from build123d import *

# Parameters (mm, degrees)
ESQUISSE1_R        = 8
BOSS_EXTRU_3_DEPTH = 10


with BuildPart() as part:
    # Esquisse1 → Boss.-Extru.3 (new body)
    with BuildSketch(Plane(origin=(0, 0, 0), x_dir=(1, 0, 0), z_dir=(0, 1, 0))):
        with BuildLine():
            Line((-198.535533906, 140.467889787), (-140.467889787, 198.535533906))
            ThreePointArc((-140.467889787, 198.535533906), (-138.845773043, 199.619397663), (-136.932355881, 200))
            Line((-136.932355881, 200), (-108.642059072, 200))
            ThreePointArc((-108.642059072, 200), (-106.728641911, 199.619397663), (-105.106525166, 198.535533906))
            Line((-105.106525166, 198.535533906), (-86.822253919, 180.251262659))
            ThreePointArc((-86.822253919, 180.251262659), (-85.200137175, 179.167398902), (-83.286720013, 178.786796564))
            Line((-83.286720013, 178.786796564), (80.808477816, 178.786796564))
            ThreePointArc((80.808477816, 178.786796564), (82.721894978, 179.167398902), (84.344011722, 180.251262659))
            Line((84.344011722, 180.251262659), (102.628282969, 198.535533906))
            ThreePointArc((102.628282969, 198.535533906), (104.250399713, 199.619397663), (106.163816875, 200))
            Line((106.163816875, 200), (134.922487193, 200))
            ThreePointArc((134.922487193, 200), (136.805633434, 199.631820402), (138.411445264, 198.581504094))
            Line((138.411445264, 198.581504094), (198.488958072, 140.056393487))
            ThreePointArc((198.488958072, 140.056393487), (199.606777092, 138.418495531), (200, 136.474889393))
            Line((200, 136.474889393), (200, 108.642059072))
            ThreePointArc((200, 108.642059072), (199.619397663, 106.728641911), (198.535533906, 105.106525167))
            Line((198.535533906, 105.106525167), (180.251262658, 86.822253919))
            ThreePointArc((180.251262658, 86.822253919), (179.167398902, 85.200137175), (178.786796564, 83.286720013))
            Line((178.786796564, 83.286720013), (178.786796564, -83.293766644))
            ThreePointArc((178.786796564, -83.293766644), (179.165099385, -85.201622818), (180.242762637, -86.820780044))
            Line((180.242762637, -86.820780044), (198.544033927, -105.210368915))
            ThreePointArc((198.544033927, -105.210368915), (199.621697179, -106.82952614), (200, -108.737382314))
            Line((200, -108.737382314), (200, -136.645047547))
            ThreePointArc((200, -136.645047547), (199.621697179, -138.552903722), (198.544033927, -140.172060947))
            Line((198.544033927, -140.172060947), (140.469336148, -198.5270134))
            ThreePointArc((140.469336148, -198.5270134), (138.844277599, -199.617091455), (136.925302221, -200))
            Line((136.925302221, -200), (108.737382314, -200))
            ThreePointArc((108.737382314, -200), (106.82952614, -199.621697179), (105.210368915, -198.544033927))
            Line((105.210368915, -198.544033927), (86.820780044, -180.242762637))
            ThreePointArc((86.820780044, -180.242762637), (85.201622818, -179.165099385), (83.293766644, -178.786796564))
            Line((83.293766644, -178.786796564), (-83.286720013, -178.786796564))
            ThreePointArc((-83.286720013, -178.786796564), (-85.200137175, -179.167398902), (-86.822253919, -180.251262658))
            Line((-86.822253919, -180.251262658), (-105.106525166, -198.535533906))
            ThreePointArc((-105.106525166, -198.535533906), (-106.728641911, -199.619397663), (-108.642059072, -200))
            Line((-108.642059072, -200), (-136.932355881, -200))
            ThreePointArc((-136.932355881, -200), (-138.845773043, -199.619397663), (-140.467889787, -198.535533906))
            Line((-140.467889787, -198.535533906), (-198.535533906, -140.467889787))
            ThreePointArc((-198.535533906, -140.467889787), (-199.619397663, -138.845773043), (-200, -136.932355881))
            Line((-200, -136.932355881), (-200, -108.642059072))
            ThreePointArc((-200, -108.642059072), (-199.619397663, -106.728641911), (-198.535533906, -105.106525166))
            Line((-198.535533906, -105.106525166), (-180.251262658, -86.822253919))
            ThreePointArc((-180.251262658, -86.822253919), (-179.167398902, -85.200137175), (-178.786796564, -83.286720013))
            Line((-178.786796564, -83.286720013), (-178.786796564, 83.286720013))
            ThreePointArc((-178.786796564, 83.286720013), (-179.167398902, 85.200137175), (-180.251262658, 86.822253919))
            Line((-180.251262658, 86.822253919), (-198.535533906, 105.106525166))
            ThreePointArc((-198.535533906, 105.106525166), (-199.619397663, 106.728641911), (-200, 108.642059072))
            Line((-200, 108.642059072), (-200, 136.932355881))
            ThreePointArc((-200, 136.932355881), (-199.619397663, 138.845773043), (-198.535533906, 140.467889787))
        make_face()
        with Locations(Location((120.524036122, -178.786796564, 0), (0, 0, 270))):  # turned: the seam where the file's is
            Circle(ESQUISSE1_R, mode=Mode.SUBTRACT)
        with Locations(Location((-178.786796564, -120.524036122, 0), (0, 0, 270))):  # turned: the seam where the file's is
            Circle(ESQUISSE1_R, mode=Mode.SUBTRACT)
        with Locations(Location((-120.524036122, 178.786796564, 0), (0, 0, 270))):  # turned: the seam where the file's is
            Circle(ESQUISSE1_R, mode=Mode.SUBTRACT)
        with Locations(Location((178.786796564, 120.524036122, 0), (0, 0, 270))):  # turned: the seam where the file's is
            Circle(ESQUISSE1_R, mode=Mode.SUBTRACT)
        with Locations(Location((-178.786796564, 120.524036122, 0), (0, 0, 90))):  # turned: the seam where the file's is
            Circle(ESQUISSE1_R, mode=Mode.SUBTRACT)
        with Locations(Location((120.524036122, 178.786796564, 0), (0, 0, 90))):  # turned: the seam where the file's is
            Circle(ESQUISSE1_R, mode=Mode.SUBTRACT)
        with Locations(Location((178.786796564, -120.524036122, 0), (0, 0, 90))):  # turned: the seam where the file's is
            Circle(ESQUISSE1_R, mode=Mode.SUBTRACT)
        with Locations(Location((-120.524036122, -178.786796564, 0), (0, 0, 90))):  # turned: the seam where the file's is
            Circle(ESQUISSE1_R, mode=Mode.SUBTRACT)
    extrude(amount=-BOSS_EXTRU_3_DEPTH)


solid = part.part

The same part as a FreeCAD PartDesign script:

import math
import FreeCAD as App
import Part
import Sketcher

doc = App.newDocument("Part")
body = doc.addObject("PartDesign::Body", "Body")

# Sketch on XZ plane
sketch1 = body.newObject("Sketcher::SketchObject", "Sketch")
sketch1.AttachmentSupport = (doc.getObject("XZ_Plane"), [""])
sketch1.MapMode = "FlatFace"
sketch1.addGeometry([
    Part.LineSegment(App.Vector(-140.5, -198.5, 0), App.Vector(-198.5, -140.5, 0)),  # 0
    Part.ArcOfCircle(Part.Circle(App.Vector(-195, -136.9, 0), App.Vector(0, 0, 1), 5), math.radians(180), math.radians(225)),  # 1
    Part.LineSegment(App.Vector(-200, -136.9, 0), App.Vector(-200, -108.6, 0)),  # 2
    Part.ArcOfCircle(Part.Circle(App.Vector(-195, -108.6, 0), App.Vector(0, 0, 1), 5), math.radians(135), math.radians(180)),  # 3
    Part.LineSegment(App.Vector(-198.5, -105.1, 0), App.Vector(-180.3, -86.8, 0)),  # 4
    Part.ArcOfCircle(Part.Circle(App.Vector(-183.8, -83.3, 0), App.Vector(0, 0, 1), 5), math.radians(-45), math.radians(0)),  # 5
    Part.LineSegment(App.Vector(-178.8, -83.3, 0), App.Vector(-178.8, 83.3, 0)),  # 6
    Part.ArcOfCircle(Part.Circle(App.Vector(-183.8, 83.3, 0), App.Vector(0, 0, 1), 5), math.radians(0), math.radians(45)),  # 7
    Part.LineSegment(App.Vector(-180.3, 86.8, 0), App.Vector(-198.5, 105.1, 0)),  # 8
    Part.ArcOfCircle(Part.Circle(App.Vector(-195, 108.6, 0), App.Vector(0, 0, 1), 5), math.radians(180), math.radians(225)),  # 9
    Part.LineSegment(App.Vector(-200, 108.6, 0), App.Vector(-200, 136.9, 0)),  # 10
    Part.ArcOfCircle(Part.Circle(App.Vector(-195, 136.9, 0), App.Vector(0, 0, 1), 5), math.radians(135), math.radians(180)),  # 11
    Part.LineSegment(App.Vector(-198.5, 140.5, 0), App.Vector(-140.5, 198.5, 0)),  # 12
    Part.ArcOfCircle(Part.Circle(App.Vector(-136.9, 195, 0), App.Vector(0, 0, 1), 5), math.radians(90), math.radians(135)),  # 13
    Part.LineSegment(App.Vector(-136.9, 200, 0), App.Vector(-108.6, 200, 0)),  # 14
    Part.ArcOfCircle(Part.Circle(App.Vector(-108.6, 195, 0), App.Vector(0, 0, 1), 5), math.radians(45), math.radians(90)),  # 15
    Part.LineSegment(App.Vector(-105.1, 198.5, 0), App.Vector(-86.8, 180.3, 0)),  # 16
    Part.ArcOfCircle(Part.Circle(App.Vector(-83.3, 183.8, 0), App.Vector(0, 0, 1), 5), math.radians(-135), math.radians(-90)),  # 17
    Part.LineSegment(App.Vector(-83.3, 178.8, 0), App.Vector(83.3, 178.8, 0)),  # 18
    Part.ArcOfCircle(Part.Circle(App.Vector(83.3, 183.8, 0), App.Vector(0, 0, 1), 5), math.radians(-90), math.radians(-45)),  # 19
    Part.LineSegment(App.Vector(86.8, 180.2, 0), App.Vector(105.2, 198.5, 0)),  # 20
    Part.ArcOfCircle(Part.Circle(App.Vector(108.7, 195, 0), App.Vector(0, 0, 1), 5), math.radians(90), math.radians(135)),  # 21
    Part.LineSegment(App.Vector(108.7, 200, 0), App.Vector(136.9, 200, 0)),  # 22
    Part.ArcOfCircle(Part.Circle(App.Vector(136.9, 195, 0), App.Vector(0, 0, 1), 5), math.radians(45), math.radians(90)),  # 23
    Part.LineSegment(App.Vector(140.5, 198.5, 0), App.Vector(198.5, 140.2, 0)),  # 24
    Part.ArcOfCircle(Part.Circle(App.Vector(195, 136.6, 0), App.Vector(0, 0, 1), 5), math.radians(0), math.radians(45)),  # 25
    Part.LineSegment(App.Vector(200, 136.6, 0), App.Vector(200, 108.7, 0)),  # 26
    Part.ArcOfCircle(Part.Circle(App.Vector(195, 108.7, 0), App.Vector(0, 0, 1), 5), math.radians(-45), math.radians(0)),  # 27
    Part.LineSegment(App.Vector(198.5, 105.2, 0), App.Vector(180.2, 86.8, 0)),  # 28
    Part.ArcOfCircle(Part.Circle(App.Vector(183.8, 83.3, 0), App.Vector(0, 0, 1), 5), math.radians(135), math.radians(180)),  # 29
    Part.LineSegment(App.Vector(178.8, 83.3, 0), App.Vector(178.8, -83.3, 0)),  # 30
    Part.ArcOfCircle(Part.Circle(App.Vector(183.8, -83.3, 0), App.Vector(0, 0, 1), 5), math.radians(-180), math.radians(-135)),  # 31
    Part.LineSegment(App.Vector(180.3, -86.8, 0), App.Vector(198.5, -105.1, 0)),  # 32
    Part.ArcOfCircle(Part.Circle(App.Vector(195, -108.6, 0), App.Vector(0, 0, 1), 5), math.radians(0), math.radians(45)),  # 33
    Part.LineSegment(App.Vector(200, -108.6, 0), App.Vector(200, -136.5, 0)),  # 34
    Part.ArcOfCircle(Part.Circle(App.Vector(195, -136.5, 0), App.Vector(0, 0, 1), 5), math.radians(-46), math.radians(0)),  # 35
    Part.LineSegment(App.Vector(198.5, -140.1, 0), App.Vector(138.4, -198.6, 0)),  # 36
    Part.ArcOfCircle(Part.Circle(App.Vector(134.9, -195, 0), App.Vector(0, 0, 1), 5), math.radians(-90), math.radians(-46)),  # 37
    Part.LineSegment(App.Vector(134.9, -200, 0), App.Vector(106.2, -200, 0)),  # 38
    Part.ArcOfCircle(Part.Circle(App.Vector(106.2, -195, 0), App.Vector(0, 0, 1), 5), math.radians(-135), math.radians(-90)),  # 39
    Part.LineSegment(App.Vector(102.6, -198.5, 0), App.Vector(84.3, -180.3, 0)),  # 40
    Part.ArcOfCircle(Part.Circle(App.Vector(80.8, -183.8, 0), App.Vector(0, 0, 1), 5), math.radians(45), math.radians(90)),  # 41
    Part.LineSegment(App.Vector(80.8, -178.8, 0), App.Vector(-83.3, -178.8, 0)),  # 42
    Part.ArcOfCircle(Part.Circle(App.Vector(-83.3, -183.8, 0), App.Vector(0, 0, 1), 5), math.radians(90), math.radians(135)),  # 43
    Part.LineSegment(App.Vector(-86.8, -180.3, 0), App.Vector(-105.1, -198.5, 0)),  # 44
    Part.ArcOfCircle(Part.Circle(App.Vector(-108.6, -195, 0), App.Vector(0, 0, 1), 5), math.radians(-90), math.radians(-45)),  # 45
    Part.LineSegment(App.Vector(-108.6, -200, 0), App.Vector(-136.9, -200, 0)),  # 46
    Part.ArcOfCircle(Part.Circle(App.Vector(-136.9, -195, 0), App.Vector(0, 0, 1), 5), math.radians(-135), math.radians(-90)),  # 47
    Part.Circle(App.Vector(120.5, 178.8, 0), App.Vector(0, 0, 1), 8),  # 48
    Part.Circle(App.Vector(178.8, 120.5, 0), App.Vector(0, 0, 1), 8),  # 49
    Part.Circle(App.Vector(-120.5, 178.8, 0), App.Vector(0, 0, 1), 8),  # 50
    Part.Circle(App.Vector(-178.8, 120.5, 0), App.Vector(0, 0, 1), 8),  # 51
    Part.Circle(App.Vector(178.8, -120.5, 0), App.Vector(0, 0, 1), 8),  # 52
    Part.Circle(App.Vector(120.5, -178.8, 0), App.Vector(0, 0, 1), 8),  # 53
    Part.Circle(App.Vector(-178.8, -120.5, 0), App.Vector(0, 0, 1), 8),  # 54
    Part.Circle(App.Vector(-120.5, -178.8, 0), App.Vector(0, 0, 1), 8),  # 55
], False)
sketch1.addConstraint([
    Sketcher.Constraint("Tangent", 0, 2, 1, 2),
    Sketcher.Constraint("Tangent", 1, 1, 2, 1),
    Sketcher.Constraint("Tangent", 2, 2, 3, 2),
    Sketcher.Constraint("Tangent", 3, 1, 4, 1),
    Sketcher.Constraint("Tangent", 4, 2, 5, 1),
    Sketcher.Constraint("Tangent", 5, 2, 6, 1),
    Sketcher.Constraint("Tangent", 6, 2, 7, 1),
    Sketcher.Constraint("Tangent", 7, 2, 8, 1),
    Sketcher.Constraint("Tangent", 8, 2, 9, 2),
    Sketcher.Constraint("Tangent", 9, 1, 10, 1),
    Sketcher.Constraint("Tangent", 10, 2, 11, 2),
    Sketcher.Constraint("Tangent", 11, 1, 12, 1),
    Sketcher.Constraint("Tangent", 12, 2, 13, 2),
    Sketcher.Constraint("Tangent", 13, 1, 14, 1),
    Sketcher.Constraint("Tangent", 14, 2, 15, 2),
    Sketcher.Constraint("Tangent", 15, 1, 16, 1),
    Sketcher.Constraint("Tangent", 16, 2, 17, 1),
    Sketcher.Constraint("Tangent", 17, 2, 18, 1),
    Sketcher.Constraint("Tangent", 18, 2, 19, 1),
    Sketcher.Constraint("Tangent", 19, 2, 20, 1),
    Sketcher.Constraint("Tangent", 20, 2, 21, 2),
    Sketcher.Constraint("Tangent", 21, 1, 22, 1),
    Sketcher.Constraint("Tangent", 22, 2, 23, 2),
    Sketcher.Constraint("Tangent", 23, 1, 24, 1),
    Sketcher.Constraint("Tangent", 24, 2, 25, 2),
    Sketcher.Constraint("Tangent", 25, 1, 26, 1),
    Sketcher.Constraint("Tangent", 26, 2, 27, 2),
    Sketcher.Constraint("Tangent", 27, 1, 28, 1),
    Sketcher.Constraint("Tangent", 28, 2, 29, 1),
    Sketcher.Constraint("Tangent", 29, 2, 30, 1),
    Sketcher.Constraint("Tangent", 30, 2, 31, 1),
    Sketcher.Constraint("Tangent", 31, 2, 32, 1),
    Sketcher.Constraint("Tangent", 32, 2, 33, 2),
    Sketcher.Constraint("Tangent", 33, 1, 34, 1),
    Sketcher.Constraint("Tangent", 34, 2, 35, 2),
    Sketcher.Constraint("Tangent", 35, 1, 36, 1),
    Sketcher.Constraint("Tangent", 36, 2, 37, 2),
    Sketcher.Constraint("Tangent", 37, 1, 38, 1),
    Sketcher.Constraint("Tangent", 38, 2, 39, 2),
    Sketcher.Constraint("Tangent", 39, 1, 40, 1),
    Sketcher.Constraint("Tangent", 40, 2, 41, 1),
    Sketcher.Constraint("Tangent", 41, 2, 42, 1),
    Sketcher.Constraint("Tangent", 42, 2, 43, 1),
    Sketcher.Constraint("Tangent", 43, 2, 44, 1),
    Sketcher.Constraint("Tangent", 44, 2, 45, 2),
    Sketcher.Constraint("Tangent", 45, 1, 46, 1),
    Sketcher.Constraint("Tangent", 46, 2, 47, 2),
    Sketcher.Constraint("Tangent", 47, 1, 0, 1),
    Sketcher.Constraint("Vertical", 2),
    Sketcher.Constraint("Vertical", 6),
    Sketcher.Constraint("Vertical", 10),
    Sketcher.Constraint("Horizontal", 14),
    Sketcher.Constraint("Horizontal", 18),
    Sketcher.Constraint("Horizontal", 22),
    Sketcher.Constraint("Vertical", 26),
    Sketcher.Constraint("Vertical", 30),
    Sketcher.Constraint("Vertical", 34),
    Sketcher.Constraint("Horizontal", 38),
    Sketcher.Constraint("Horizontal", 42),
    Sketcher.Constraint("Horizontal", 46),
    Sketcher.Constraint("Equal", 1, 3),
    Sketcher.Constraint("Equal", 3, 5),
    Sketcher.Constraint("Equal", 5, 7),
    Sketcher.Constraint("Equal", 7, 9),
    Sketcher.Constraint("Equal", 9, 11),
    Sketcher.Constraint("Equal", 11, 13),
    Sketcher.Constraint("Equal", 13, 15),
    Sketcher.Constraint("Equal", 15, 17),
    Sketcher.Constraint("Equal", 17, 19),
    Sketcher.Constraint("Equal", 19, 21),
    Sketcher.Constraint("Equal", 21, 23),
    Sketcher.Constraint("Equal", 23, 25),
    Sketcher.Constraint("Equal", 25, 27),
    Sketcher.Constraint("Equal", 27, 29),
    Sketcher.Constraint("Equal", 29, 31),
    Sketcher.Constraint("Equal", 31, 33),
    Sketcher.Constraint("Equal", 33, 35),
    Sketcher.Constraint("Equal", 35, 37),
    Sketcher.Constraint("Equal", 37, 39),
    Sketcher.Constraint("Equal", 39, 41),
    Sketcher.Constraint("Equal", 41, 43),
    Sketcher.Constraint("Equal", 43, 45),
    Sketcher.Constraint("Equal", 45, 47),
    Sketcher.Constraint("Equal", 48, 49),
    Sketcher.Constraint("Equal", 49, 50),
    Sketcher.Constraint("Equal", 50, 51),
    Sketcher.Constraint("Equal", 51, 52),
    Sketcher.Constraint("Equal", 52, 53),
    Sketcher.Constraint("Equal", 53, 54),
    Sketcher.Constraint("Equal", 54, 55),
    Sketcher.Constraint("Symmetric", 7, 3, 31, 3, -1, 1),
    Sketcher.Constraint("Symmetric", 9, 3, 33, 3, -1, 1),
    Sketcher.Constraint("Symmetric", 51, 3, 52, 3, -1, 1),
    Sketcher.Constraint("Symmetric", 50, 3, 53, 3, -1, 1),
    Sketcher.Constraint("Symmetric", 49, 3, 54, 3, -1, 1),
    Sketcher.Constraint("Symmetric", 48, 3, 55, 3, -1, 1),
    Sketcher.Constraint("Symmetric", 3, 3, 33, 3, -2),
    Sketcher.Constraint("Symmetric", 48, 3, 50, 3, -2),
    Sketcher.Constraint("Symmetric", 49, 3, 51, 3, -2),
    Sketcher.Constraint("Symmetric", 17, 3, 43, 3, -1),
    Sketcher.Constraint("Symmetric", 15, 3, 45, 3, -1),
    Sketcher.Constraint("Symmetric", 0, 2, 11, 1, -1),
    Sketcher.Constraint("Perpendicular", 0, 4),
    Sketcher.Constraint("Perpendicular", 4, 8),
    Sketcher.Constraint("Perpendicular", 8, 12),
    Sketcher.Constraint("Perpendicular", 12, 16),
    Sketcher.Constraint("Perpendicular", 20, 24),
    Sketcher.Constraint("Parallel", 32, 40),
    Sketcher.Constraint("Horizontal", 15, 3, 21, 3),
    Sketcher.Constraint("Horizontal", 39, 3, 45, 3),
    Sketcher.Constraint("Horizontal", 50, 3, 17, 2),
    Sketcher.Constraint("Vertical", 27, 3, 33, 3),
    Sketcher.Constraint("Vertical", 54, 3, 5, 2),
    Sketcher.Constraint("Vertical", 24, 2, 27, 1),
    Sketcher.Constraint("Equal", 46, 2),
    Sketcher.Constraint("Equal", 18, 30),
    Sketcher.Constraint("Equal", 8, 16),
    Sketcher.Constraint("Diameter", 48, 16.0),
    Sketcher.Constraint("Radius", 1, 5.0),
    Sketcher.Constraint("DistanceX", 1, 3, -1, 1, 195.0),
    Sketcher.Constraint("DistanceY", -1, 1, 13, 3, 195.0),
    Sketcher.Constraint("DistanceX", 22, 1, 22, 2, 28.18792),
    Sketcher.Constraint("DistanceX", 38, 2, 38, 1, 28.75867),
    Sketcher.Constraint("DistanceY", 6, 1, 6, 2, 166.57344),
    Sketcher.Constraint("DistanceY", 34, 2, 34, 1, 27.83283),
    Sketcher.Constraint("Distance", 0, 82.12005),
    Sketcher.Constraint("Distance", 20, 25.944431),
    Sketcher.Constraint("DistanceX", 14, 1, 14, 2, 28.290297),
    Sketcher.Constraint("DistanceX", 18, 1, 18, 2, 166.580487),
    Sketcher.Constraint("DistanceX", 42, 2, 42, 1, 164.095198),
    Sketcher.Constraint("DistanceX", -1, 1, 48, 3, 120.524036),
    Sketcher.Constraint("DistanceY", -1, 1, 49, 3, 120.524036),
])
pad1 = body.newObject("PartDesign::Pad", "Pad")
pad1.Profile = sketch1
pad1.Length = 10

doc.recompute()
